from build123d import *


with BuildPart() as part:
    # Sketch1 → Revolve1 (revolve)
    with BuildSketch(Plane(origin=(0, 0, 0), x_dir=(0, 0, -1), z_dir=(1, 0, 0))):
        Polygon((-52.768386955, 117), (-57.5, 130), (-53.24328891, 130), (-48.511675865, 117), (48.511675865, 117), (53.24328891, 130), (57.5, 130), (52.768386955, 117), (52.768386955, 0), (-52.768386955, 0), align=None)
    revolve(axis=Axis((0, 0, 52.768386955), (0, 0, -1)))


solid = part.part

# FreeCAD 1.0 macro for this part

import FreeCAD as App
import Part
import Sketcher
from FreeCAD import Vector
Q = App.Units.Quantity

doc = App.newDocument("Part")
body = doc.addObject("PartDesign::Body", "Body")

sketch1 = doc.addObject("Sketcher::SketchObject", "Sketch")
body.addObject(sketch1)
sketch1.AttachmentSupport = (doc.YZ_Plane, [""])
sketch1.MapMode = "FlatFace"
sketch1.addGeometry(Part.LineSegment(Vector(130, 57.5, 0), Vector(117, 52.768387, 0)), False)
sketch1.addGeometry(Part.LineSegment(Vector(117, 52.768387, 0), Vector(0, 52.768387, 0)), False)
sketch1.addGeometry(Part.LineSegment(Vector(0, 52.768387, 0), Vector(0, -52.768387, 0)), False)
sketch1.addGeometry(Part.LineSegment(Vector(0, -52.768387, 0), Vector(117, -52.768387, 0)), False)
sketch1.addGeometry(Part.LineSegment(Vector(117, -52.768387, 0), Vector(130, -57.5, 0)), False)
sketch1.addGeometry(Part.LineSegment(Vector(130, -57.5, 0), Vector(130, -53.243289, 0)), False)
sketch1.addGeometry(Part.LineSegment(Vector(130, -53.243289, 0), Vector(117, -48.511676, 0)), False)
sketch1.addGeometry(Part.LineSegment(Vector(117, -48.511676, 0), Vector(117, 48.511676, 0)), False)
sketch1.addGeometry(Part.LineSegment(Vector(117, 48.511676, 0), Vector(130, 53.243289, 0)), False)
sketch1.addGeometry(Part.LineSegment(Vector(130, 53.243289, 0), Vector(130, 57.5, 0)), False)
sketch1.addConstraint(Sketcher.Constraint("Coincident", 0, 2, 1, 1))
sketch1.addConstraint(Sketcher.Constraint("Coincident", 1, 2, 2, 1))
sketch1.addConstraint(Sketcher.Constraint("Coincident", 2, 2, 3, 1))
sketch1.addConstraint(Sketcher.Constraint("Coincident", 3, 2, 4, 1))
sketch1.addConstraint(Sketcher.Constraint("Coincident", 4, 2, 5, 1))
sketch1.addConstraint(Sketcher.Constraint("Coincident", 5, 2, 6, 1))
sketch1.addConstraint(Sketcher.Constraint("Coincident", 6, 2, 7, 1))
sketch1.addConstraint(Sketcher.Constraint("Coincident", 7, 2, 8, 1))
sketch1.addConstraint(Sketcher.Constraint("Coincident", 8, 2, 9, 1))
sketch1.addConstraint(Sketcher.Constraint("Coincident", 9, 2, 0, 1))
sketch1.addConstraint(Sketcher.Constraint("Horizontal", 1))
sketch1.addConstraint(Sketcher.Constraint("Vertical", 2))
sketch1.addConstraint(Sketcher.Constraint("Horizontal", 3))
sketch1.addConstraint(Sketcher.Constraint("Vertical", 5))
sketch1.addConstraint(Sketcher.Constraint("Vertical", 7))
sketch1.addConstraint(Sketcher.Constraint("Vertical", 9))
sketch1.addConstraint(Sketcher.Constraint("Symmetric", 1, 2, 2, 2, -1, 1))
sketch1.addConstraint(Sketcher.Constraint("Symmetric", 5, 2, 8, 2, -1))
sketch1.addConstraint(Sketcher.Constraint("Parallel", 4, 6))
sketch1.addConstraint(Sketcher.Constraint("Parallel", 0, 8))
sketch1.addConstraint(Sketcher.Constraint("Vertical", 0, 2, 3, 2))
sketch1.addConstraint(Sketcher.Constraint("Vertical", 3, 2, 6, 2))
sketch1.addConstraint(Sketcher.Constraint("Equal", 5, 9))
sketch1.addConstraint(Sketcher.Constraint("DistanceX", 1, 2, 1, 1, Q("117 mm")))
sketch1.addConstraint(Sketcher.Constraint("Angle", 0, Q("-160 deg")))
sketch1.addConstraint(Sketcher.Constraint("DistanceX", -1, 1, 4, 2, Q("130 mm")))
sketch1.addConstraint(Sketcher.Constraint("DistanceY", 4, 2, -1, 1, Q("57.5 mm")))
sketch1.addConstraint(Sketcher.Constraint("DistanceY", 5, 1, 5, 2, Q("4.256711 mm")))
revolution = doc.addObject("PartDesign::Revolution", "Revolution")
body.addObject(revolution)
revolution.Profile = sketch1
revolution.ReferenceAxis = (sketch1, ["V_Axis"])
revolution.Angle = 360

doc.recompute()
